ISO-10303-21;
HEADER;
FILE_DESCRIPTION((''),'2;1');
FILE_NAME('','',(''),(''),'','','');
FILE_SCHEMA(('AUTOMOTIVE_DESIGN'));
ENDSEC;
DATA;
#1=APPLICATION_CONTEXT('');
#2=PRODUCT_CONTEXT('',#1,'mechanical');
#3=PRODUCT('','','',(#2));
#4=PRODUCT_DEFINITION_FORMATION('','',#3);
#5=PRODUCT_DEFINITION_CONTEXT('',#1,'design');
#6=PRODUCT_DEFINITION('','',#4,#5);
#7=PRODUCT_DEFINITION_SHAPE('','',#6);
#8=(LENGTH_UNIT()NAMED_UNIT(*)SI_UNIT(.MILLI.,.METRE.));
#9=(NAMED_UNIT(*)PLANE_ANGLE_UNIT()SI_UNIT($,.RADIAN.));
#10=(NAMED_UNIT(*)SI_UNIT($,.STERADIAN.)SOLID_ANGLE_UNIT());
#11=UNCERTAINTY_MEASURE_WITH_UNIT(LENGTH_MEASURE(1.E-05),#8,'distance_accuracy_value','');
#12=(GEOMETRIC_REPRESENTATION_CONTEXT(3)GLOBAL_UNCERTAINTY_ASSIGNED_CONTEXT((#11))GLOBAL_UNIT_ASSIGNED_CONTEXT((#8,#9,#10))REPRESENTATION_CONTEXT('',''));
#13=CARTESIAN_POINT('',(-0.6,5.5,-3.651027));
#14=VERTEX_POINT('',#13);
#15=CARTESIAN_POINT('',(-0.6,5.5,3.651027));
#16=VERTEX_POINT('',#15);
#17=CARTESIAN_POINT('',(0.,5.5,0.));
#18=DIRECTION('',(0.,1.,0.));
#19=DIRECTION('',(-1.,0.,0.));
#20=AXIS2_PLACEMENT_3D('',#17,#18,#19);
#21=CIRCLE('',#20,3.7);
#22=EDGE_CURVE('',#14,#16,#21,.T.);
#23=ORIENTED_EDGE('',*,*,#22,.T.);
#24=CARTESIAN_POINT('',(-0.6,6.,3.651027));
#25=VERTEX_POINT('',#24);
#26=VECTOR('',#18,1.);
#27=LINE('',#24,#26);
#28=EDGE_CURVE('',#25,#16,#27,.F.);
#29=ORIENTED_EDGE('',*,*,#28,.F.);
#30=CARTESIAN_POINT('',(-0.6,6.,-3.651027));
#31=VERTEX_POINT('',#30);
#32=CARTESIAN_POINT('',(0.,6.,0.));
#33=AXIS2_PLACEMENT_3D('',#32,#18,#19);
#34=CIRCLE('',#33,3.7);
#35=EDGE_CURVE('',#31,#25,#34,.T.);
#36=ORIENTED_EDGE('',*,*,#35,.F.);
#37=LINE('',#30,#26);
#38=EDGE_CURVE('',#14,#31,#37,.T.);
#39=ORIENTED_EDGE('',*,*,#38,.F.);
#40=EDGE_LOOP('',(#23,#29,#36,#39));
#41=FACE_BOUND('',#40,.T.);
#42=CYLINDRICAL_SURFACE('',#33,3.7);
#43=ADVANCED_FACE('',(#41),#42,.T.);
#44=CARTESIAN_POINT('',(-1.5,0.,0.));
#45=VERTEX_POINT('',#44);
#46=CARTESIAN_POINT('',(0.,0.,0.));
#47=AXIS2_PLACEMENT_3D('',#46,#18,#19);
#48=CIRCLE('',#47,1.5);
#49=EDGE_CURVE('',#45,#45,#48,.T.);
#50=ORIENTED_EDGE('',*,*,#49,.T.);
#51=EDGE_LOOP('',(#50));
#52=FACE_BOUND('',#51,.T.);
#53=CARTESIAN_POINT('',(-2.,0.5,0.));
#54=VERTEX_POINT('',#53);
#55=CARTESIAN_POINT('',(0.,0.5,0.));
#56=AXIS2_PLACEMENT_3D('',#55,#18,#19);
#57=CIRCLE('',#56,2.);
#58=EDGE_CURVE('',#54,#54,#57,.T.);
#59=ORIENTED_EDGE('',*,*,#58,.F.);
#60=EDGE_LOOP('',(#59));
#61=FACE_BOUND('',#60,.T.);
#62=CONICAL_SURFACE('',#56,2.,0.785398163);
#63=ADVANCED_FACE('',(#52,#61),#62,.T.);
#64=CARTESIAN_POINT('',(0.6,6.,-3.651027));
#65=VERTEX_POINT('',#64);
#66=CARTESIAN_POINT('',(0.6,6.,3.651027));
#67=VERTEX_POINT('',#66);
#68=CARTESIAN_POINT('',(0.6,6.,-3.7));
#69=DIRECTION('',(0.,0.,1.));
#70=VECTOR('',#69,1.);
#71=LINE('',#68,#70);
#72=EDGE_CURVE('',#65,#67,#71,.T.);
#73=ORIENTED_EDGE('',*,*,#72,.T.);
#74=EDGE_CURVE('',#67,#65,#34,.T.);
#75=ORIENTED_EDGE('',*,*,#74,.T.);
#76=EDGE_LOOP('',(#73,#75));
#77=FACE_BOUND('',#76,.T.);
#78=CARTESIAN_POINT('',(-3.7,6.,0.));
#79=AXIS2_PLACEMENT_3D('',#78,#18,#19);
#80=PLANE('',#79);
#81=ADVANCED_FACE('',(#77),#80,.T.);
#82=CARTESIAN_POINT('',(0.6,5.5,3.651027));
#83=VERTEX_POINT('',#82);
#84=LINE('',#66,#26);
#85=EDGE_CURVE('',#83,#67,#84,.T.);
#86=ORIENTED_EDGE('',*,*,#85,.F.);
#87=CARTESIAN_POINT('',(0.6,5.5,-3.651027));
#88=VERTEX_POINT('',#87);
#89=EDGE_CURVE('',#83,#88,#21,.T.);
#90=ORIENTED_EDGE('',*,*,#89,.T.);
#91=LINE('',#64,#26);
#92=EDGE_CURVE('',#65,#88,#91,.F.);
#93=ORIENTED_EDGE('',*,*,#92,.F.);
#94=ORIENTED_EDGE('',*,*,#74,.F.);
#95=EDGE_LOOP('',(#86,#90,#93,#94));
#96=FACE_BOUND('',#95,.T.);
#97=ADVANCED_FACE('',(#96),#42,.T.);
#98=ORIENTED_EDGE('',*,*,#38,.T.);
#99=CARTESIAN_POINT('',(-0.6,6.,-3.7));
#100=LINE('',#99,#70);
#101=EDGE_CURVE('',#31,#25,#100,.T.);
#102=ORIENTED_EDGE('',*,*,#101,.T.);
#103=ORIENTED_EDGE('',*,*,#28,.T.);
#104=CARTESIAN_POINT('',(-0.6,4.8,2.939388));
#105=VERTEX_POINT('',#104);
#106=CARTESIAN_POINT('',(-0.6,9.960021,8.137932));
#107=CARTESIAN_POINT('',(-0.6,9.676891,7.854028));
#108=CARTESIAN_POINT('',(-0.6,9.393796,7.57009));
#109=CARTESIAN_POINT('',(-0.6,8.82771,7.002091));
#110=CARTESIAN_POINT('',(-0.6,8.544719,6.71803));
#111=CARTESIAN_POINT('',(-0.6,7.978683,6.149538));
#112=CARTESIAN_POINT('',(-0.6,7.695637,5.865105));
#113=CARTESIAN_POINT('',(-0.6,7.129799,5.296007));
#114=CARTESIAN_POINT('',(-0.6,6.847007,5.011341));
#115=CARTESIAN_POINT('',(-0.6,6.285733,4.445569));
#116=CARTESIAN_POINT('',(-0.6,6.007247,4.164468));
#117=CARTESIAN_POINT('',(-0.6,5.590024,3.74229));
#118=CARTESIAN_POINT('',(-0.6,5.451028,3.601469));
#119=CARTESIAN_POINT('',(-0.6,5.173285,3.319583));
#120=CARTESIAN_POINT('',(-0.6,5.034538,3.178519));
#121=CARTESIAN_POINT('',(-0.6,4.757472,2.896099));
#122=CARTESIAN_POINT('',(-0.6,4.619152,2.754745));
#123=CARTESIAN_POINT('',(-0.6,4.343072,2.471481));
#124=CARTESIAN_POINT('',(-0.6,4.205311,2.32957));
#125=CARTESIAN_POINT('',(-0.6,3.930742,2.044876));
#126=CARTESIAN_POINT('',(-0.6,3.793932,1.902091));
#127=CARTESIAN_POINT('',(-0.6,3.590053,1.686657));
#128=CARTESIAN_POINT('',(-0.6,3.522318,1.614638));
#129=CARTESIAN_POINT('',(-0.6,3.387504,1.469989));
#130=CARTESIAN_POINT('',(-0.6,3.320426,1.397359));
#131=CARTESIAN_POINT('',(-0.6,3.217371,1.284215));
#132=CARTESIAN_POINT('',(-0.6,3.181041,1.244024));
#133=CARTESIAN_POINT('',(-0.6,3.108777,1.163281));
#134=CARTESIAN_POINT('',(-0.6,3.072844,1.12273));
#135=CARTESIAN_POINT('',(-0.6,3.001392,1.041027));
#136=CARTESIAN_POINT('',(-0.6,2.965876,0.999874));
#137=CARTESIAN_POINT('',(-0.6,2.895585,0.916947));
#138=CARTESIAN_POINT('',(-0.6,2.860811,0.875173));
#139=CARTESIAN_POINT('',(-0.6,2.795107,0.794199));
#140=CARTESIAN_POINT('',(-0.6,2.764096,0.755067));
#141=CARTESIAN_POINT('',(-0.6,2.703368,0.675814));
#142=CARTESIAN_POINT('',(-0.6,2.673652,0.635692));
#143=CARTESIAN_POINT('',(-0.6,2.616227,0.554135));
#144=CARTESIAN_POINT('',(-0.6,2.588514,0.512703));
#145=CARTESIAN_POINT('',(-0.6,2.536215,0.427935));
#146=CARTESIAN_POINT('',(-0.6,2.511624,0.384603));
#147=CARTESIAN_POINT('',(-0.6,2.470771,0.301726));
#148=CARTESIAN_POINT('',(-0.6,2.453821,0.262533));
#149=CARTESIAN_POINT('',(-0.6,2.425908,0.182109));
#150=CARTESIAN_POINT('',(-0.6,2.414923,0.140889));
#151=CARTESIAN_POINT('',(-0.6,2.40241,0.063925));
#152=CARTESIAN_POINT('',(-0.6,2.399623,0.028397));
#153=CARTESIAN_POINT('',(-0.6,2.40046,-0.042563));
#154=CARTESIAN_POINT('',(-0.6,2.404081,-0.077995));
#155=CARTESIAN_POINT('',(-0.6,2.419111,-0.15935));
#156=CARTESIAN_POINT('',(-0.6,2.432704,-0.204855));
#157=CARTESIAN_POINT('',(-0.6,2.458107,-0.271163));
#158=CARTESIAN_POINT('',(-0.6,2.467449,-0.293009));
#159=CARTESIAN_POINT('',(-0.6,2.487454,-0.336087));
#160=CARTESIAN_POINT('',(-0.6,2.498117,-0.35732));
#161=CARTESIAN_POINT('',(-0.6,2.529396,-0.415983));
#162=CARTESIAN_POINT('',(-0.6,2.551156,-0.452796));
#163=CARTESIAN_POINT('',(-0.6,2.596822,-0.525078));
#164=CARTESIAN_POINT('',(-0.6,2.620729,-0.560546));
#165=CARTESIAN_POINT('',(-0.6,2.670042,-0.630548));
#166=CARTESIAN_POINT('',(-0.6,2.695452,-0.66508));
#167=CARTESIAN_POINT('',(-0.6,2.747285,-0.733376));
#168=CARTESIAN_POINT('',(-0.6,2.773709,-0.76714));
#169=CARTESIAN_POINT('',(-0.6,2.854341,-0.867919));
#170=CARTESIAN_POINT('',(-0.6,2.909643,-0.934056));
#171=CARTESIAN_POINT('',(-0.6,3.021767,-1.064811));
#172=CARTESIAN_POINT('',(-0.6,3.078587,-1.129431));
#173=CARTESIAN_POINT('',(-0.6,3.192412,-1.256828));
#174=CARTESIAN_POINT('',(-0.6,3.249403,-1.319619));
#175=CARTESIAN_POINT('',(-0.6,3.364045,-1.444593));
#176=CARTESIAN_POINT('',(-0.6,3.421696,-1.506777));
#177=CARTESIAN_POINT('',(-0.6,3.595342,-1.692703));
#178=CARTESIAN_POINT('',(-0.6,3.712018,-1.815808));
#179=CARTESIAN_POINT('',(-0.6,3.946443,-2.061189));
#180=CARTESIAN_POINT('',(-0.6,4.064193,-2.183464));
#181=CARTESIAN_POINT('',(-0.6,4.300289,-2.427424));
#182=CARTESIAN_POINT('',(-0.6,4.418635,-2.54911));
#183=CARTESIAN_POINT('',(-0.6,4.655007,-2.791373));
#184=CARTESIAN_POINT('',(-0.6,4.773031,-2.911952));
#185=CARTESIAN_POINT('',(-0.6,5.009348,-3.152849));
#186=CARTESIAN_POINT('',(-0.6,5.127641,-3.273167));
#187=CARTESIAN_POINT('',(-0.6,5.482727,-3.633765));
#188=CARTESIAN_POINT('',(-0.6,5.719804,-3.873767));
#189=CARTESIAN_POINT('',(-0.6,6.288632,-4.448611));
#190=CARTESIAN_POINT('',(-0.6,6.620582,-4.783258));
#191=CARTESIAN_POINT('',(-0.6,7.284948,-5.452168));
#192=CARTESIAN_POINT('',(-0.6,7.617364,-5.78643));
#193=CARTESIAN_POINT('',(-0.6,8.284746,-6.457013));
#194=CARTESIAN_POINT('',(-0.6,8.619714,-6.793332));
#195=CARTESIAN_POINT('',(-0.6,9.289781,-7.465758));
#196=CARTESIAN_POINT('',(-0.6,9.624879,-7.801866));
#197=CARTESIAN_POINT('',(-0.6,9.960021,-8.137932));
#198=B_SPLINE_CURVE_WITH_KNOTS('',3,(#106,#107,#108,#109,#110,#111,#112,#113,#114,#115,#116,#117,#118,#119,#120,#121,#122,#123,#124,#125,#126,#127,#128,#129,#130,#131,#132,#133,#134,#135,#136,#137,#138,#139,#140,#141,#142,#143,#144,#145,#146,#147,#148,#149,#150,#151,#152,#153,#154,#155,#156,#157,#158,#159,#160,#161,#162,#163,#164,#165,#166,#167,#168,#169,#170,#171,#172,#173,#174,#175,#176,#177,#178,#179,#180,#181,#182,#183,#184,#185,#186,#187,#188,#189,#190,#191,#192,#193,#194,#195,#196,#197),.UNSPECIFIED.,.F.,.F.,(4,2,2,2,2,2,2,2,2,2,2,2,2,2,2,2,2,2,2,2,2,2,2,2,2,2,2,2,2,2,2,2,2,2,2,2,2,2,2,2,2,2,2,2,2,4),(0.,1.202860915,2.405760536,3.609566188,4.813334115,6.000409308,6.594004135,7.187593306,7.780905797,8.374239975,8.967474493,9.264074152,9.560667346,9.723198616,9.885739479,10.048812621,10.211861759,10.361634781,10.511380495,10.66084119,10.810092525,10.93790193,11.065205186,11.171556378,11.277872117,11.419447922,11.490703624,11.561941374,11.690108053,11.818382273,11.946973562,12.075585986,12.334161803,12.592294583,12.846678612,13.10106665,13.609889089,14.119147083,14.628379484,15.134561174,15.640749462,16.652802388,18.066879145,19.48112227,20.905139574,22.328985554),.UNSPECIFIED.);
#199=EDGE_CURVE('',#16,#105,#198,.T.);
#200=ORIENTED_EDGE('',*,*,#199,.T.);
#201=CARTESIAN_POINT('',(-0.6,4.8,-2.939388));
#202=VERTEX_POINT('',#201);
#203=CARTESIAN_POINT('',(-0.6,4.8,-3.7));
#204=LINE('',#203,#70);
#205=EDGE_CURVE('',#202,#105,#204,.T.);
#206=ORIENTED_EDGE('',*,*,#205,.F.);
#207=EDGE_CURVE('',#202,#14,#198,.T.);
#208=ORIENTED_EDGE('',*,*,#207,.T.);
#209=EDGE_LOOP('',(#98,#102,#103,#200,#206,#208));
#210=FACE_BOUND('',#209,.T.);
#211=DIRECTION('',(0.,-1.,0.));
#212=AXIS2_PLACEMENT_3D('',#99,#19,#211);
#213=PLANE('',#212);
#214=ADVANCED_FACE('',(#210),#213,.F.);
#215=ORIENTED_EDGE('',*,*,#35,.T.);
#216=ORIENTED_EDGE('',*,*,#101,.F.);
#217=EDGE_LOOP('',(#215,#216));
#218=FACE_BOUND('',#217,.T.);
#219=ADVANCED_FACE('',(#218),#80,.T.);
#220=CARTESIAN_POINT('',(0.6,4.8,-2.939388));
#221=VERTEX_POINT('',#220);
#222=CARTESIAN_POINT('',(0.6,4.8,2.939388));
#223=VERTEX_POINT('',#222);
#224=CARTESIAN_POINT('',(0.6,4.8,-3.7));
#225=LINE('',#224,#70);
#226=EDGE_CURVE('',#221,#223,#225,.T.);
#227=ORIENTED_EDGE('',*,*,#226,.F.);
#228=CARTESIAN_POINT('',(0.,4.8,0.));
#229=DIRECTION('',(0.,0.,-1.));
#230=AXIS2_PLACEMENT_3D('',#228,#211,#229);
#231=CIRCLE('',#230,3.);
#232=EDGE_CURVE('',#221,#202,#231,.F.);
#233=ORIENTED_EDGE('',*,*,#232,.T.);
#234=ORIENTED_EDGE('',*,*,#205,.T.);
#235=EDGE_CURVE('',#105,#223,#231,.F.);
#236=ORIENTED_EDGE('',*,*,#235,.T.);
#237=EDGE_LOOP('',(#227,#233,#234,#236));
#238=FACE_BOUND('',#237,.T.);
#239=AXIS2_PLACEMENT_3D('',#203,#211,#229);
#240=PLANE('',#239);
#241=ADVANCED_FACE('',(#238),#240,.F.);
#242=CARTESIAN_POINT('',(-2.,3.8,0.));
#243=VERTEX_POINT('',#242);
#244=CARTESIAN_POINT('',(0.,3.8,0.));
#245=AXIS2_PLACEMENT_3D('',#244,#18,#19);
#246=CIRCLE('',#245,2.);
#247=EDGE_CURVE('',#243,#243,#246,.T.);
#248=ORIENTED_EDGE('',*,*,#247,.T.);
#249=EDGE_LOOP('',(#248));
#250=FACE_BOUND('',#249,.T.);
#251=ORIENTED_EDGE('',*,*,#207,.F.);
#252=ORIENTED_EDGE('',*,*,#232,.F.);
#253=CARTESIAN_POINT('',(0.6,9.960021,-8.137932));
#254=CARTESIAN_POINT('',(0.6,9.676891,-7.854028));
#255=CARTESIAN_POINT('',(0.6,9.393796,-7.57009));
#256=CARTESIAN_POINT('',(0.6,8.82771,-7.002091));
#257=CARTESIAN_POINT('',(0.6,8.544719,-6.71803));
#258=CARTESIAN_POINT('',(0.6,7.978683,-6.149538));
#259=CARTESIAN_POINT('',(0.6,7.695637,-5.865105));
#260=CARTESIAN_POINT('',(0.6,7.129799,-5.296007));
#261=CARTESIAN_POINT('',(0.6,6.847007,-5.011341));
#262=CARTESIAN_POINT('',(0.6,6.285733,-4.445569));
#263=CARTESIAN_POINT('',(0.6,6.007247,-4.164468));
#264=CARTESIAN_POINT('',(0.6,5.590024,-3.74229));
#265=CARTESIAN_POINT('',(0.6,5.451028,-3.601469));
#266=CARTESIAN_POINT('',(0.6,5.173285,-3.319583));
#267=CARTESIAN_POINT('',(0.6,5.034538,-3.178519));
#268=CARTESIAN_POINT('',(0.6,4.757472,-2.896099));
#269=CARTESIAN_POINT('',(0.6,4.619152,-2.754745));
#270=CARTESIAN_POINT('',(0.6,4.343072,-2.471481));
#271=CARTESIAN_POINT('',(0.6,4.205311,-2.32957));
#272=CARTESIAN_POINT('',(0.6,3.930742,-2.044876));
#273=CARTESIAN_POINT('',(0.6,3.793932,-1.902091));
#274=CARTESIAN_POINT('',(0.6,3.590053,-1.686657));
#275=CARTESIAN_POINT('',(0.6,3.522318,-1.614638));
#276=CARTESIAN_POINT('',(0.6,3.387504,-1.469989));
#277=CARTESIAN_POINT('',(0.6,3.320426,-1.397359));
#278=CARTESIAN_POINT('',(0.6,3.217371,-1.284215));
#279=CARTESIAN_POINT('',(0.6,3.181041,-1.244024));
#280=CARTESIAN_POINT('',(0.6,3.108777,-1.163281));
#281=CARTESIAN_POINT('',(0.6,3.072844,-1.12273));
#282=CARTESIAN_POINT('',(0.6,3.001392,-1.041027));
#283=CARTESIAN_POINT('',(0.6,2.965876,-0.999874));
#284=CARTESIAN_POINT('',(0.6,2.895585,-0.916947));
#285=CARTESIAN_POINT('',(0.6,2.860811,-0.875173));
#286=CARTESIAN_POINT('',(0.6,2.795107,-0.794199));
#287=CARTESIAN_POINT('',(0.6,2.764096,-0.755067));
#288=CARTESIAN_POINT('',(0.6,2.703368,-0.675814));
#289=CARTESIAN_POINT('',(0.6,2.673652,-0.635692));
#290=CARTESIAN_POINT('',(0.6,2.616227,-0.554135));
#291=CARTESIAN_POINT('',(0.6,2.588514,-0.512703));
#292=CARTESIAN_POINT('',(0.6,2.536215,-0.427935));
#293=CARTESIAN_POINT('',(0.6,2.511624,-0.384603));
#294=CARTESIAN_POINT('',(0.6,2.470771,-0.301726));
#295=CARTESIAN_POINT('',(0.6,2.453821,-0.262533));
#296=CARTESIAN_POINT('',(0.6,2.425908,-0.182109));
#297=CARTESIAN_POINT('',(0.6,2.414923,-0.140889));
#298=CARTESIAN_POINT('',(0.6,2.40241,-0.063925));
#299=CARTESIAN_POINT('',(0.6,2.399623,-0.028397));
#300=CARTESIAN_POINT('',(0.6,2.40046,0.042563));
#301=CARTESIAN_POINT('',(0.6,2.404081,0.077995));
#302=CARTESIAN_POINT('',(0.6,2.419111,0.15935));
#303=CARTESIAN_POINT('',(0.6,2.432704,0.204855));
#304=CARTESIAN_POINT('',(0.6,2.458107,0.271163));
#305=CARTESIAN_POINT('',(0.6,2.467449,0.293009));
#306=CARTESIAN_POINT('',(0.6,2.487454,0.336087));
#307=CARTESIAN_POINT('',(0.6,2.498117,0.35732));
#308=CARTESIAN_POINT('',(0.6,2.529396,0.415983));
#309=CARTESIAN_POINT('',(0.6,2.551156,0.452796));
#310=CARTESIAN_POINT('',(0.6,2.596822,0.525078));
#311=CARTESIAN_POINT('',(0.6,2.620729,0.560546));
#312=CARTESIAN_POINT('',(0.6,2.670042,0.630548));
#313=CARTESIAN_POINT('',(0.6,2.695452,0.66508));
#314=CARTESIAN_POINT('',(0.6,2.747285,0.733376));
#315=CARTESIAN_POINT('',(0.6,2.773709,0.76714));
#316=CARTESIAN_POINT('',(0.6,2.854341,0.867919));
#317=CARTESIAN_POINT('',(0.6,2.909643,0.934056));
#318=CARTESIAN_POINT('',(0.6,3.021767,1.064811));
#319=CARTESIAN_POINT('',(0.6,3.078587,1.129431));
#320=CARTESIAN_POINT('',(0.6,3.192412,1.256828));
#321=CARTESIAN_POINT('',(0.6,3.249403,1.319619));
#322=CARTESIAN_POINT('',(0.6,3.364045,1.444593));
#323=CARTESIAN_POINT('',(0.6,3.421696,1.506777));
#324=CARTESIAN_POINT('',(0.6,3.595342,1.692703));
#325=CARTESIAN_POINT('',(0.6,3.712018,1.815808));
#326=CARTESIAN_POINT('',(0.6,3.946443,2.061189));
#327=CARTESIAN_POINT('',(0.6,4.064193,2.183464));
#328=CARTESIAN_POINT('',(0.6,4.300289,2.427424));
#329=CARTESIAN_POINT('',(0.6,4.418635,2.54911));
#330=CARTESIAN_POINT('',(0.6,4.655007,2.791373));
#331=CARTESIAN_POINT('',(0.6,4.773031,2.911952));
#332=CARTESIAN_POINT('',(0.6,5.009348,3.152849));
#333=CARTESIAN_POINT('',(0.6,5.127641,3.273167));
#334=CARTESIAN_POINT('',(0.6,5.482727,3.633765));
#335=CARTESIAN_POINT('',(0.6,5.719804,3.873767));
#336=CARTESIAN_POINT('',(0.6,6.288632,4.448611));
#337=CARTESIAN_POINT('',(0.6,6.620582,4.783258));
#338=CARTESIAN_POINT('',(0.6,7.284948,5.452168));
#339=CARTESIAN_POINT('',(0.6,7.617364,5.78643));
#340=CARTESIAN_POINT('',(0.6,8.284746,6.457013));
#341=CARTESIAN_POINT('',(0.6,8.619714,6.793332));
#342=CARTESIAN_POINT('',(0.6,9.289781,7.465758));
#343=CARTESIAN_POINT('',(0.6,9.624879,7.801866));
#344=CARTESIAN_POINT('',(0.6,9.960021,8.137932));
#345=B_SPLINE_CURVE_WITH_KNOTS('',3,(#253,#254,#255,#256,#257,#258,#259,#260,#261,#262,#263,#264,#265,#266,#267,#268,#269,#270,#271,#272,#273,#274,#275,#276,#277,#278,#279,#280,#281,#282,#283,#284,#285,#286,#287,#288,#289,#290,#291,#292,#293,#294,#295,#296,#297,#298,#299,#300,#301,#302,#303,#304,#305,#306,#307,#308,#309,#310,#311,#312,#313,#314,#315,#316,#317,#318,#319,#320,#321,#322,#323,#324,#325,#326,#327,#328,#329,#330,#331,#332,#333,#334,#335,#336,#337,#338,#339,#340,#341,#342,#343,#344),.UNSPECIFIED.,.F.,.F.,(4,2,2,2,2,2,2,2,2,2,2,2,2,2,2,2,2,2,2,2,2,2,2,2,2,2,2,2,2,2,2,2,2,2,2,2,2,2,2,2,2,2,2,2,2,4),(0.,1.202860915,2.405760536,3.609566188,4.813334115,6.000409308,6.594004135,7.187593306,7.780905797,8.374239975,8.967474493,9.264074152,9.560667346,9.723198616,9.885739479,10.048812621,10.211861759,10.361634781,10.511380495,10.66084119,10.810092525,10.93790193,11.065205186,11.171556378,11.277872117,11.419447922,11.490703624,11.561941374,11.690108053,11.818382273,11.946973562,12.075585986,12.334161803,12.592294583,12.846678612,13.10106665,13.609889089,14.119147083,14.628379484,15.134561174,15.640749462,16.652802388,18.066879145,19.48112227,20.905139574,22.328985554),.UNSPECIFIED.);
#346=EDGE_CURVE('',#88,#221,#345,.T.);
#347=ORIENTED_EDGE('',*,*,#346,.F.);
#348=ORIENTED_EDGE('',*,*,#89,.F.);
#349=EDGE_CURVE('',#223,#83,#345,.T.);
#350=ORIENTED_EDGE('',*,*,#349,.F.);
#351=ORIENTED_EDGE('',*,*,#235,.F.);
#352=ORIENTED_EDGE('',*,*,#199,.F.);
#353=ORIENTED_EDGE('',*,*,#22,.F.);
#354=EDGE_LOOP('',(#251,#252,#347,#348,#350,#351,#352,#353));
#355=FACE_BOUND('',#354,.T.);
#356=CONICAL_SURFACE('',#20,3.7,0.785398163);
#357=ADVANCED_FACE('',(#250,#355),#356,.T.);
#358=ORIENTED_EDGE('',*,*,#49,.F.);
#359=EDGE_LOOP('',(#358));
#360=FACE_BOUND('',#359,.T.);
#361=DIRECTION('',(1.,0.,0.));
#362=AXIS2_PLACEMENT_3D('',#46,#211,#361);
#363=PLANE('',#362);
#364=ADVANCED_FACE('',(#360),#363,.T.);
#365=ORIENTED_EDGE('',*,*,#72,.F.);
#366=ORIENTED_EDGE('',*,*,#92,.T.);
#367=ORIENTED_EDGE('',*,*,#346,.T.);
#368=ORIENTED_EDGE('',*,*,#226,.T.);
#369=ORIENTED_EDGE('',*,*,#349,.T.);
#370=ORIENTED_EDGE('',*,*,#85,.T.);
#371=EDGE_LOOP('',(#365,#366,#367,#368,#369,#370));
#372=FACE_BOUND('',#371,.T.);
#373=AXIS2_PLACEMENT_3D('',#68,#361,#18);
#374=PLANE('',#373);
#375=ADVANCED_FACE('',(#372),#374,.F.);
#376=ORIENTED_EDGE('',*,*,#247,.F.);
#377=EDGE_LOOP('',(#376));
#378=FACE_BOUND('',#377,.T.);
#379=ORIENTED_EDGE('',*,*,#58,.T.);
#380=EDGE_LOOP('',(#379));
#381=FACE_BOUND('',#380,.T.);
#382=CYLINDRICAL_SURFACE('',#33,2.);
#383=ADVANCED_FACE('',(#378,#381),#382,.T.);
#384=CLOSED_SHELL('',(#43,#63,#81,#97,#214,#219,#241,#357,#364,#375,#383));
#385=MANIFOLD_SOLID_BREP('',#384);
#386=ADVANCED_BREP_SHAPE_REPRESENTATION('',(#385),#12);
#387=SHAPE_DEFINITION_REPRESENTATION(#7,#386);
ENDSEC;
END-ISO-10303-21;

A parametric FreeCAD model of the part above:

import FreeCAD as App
import Part
import Sketcher
Q = App.Units.Quantity


def add_polygon(sketch, points):
    """Adds a closed chain of lines whose ends are joined by coincident constraints."""
    first, n = sketch.GeometryCount, len(points)
    for a, b in zip(points, points[1:] + points[:1]):
        sketch.addGeometry(Part.LineSegment(App.Vector(*a, 0), App.Vector(*b, 0)), False)
    for i in range(n):
        sketch.addConstraint(Sketcher.Constraint("Coincident", first + i, 2, first + (i + 1) % n, 1))

doc = App.newDocument("Part")
params = doc.addObject("Spreadsheet::Sheet", "Params")
for row, (alias, value) in enumerate([
    ("sketch1_height", "6 mm"),
    ("sketch1_width", "1.5 mm"),
    ("sketch1_width2", "3.7 mm"),
    ("sketch1_height2", "0.5 mm"),
    ("revolution_angle", "360 deg"),
    ("sketch2_width", "1.2 mm"),
], start=1):
    params.set(f"A{row}", alias)
    params.set(f"B{row}", "=" + value)
    params.setAlias(f"B{row}", alias)

body = doc.addObject("PartDesign::Body", "Body")

sketch1 = body.newObject("Sketcher::SketchObject", "Sketch")
sketch1.AttachmentSupport = (doc.getObject("XY_Plane"), [""])
sketch1.MapMode = "FlatFace"
add_polygon(sketch1, [(-1.5, 0), (0, 0), (0, 6), (-3.7, 6), (-3.7, 5.5), (-2, 3.8), (-2, 0.5)])
sketch1.addConstraint(Sketcher.Constraint("Horizontal", 0))
sketch1.addConstraint(Sketcher.Constraint("Vertical", 1))
sketch1.addConstraint(Sketcher.Constraint("Horizontal", 2))
sketch1.addConstraint(Sketcher.Constraint("Vertical", 3))
sketch1.addConstraint(Sketcher.Constraint("Vertical", 5))
sketch1.addConstraint(Sketcher.Constraint("Coincident", 0, 2, -1, 1))
sketch1.addConstraint(Sketcher.Constraint("Parallel", 4, 6))
sketch1.addConstraint(Sketcher.Constraint("DistanceY", 1, 1, 1, 2, Q("6 mm")))
sketch1.addConstraint(Sketcher.Constraint("Angle", 4, Q("-45 deg")))
sketch1.addConstraint(Sketcher.Constraint("DistanceX", 0, 1, 0, 2, Q("1.5 mm")))
sketch1.addConstraint(Sketcher.Constraint("DistanceX", 2, 2, 2, 1, Q("3.7 mm")))
sketch1.addConstraint(Sketcher.Constraint("DistanceY", 3, 2, 3, 1, Q("0.5 mm")))
sketch1.addConstraint(Sketcher.Constraint("DistanceX", 4, 2, -1, 1, Q("2 mm")))
sketch1.setExpression("Constraints[14]", "Params.sketch1_height")
sketch1.setExpression("Constraints[16]", "Params.sketch1_width")
sketch1.setExpression("Constraints[17]", "Params.sketch1_width2")
sketch1.setExpression("Constraints[18]", "Params.sketch1_height2")
revolution = body.newObject("PartDesign::Revolution", "Revolution")
revolution.Profile = sketch1
revolution.ReferenceAxis = (sketch1, ["V_Axis"])
revolution.setExpression("Angle", "Params.revolution_angle")

sketch2 = body.newObject("Sketcher::SketchObject", "Sketch001")
sketch2.AttachmentSupport = (doc.getObject("XY_Plane"), [""])
sketch2.MapMode = "FlatFace"
add_polygon(sketch2, [(-0.6, 6), (-0.6, 4.8), (0.6, 4.8), (0.6, 6)])
sketch2.addConstraint(Sketcher.Constraint("Vertical", 0))
sketch2.addConstraint(Sketcher.Constraint("Horizontal", 1))
sketch2.addConstraint(Sketcher.Constraint("Vertical", 2))
sketch2.addConstraint(Sketcher.Constraint("Horizontal", 3))
sketch2.addConstraint(Sketcher.Constraint("Equal", 3, 0))
sketch2.addConstraint(Sketcher.Constraint("DistanceX", 1, 1, 1, 2, Q("1.2 mm")))
sketch2.addConstraint(Sketcher.Constraint("DistanceY", -1, 1, 2, 2, Q("6 mm")))
sketch2.addConstraint(Sketcher.Constraint("DistanceX", 0, 2, -1, 1, Q("0.6 mm")))
sketch2.setExpression("Constraints[9]", "Params.sketch2_width")
pocket1 = body.newObject("PartDesign::Pocket", "Pocket")
pocket1.Profile = sketch2
pocket1.Type = "ThroughAll"
pocket1.Midplane = True

doc.recompute()
